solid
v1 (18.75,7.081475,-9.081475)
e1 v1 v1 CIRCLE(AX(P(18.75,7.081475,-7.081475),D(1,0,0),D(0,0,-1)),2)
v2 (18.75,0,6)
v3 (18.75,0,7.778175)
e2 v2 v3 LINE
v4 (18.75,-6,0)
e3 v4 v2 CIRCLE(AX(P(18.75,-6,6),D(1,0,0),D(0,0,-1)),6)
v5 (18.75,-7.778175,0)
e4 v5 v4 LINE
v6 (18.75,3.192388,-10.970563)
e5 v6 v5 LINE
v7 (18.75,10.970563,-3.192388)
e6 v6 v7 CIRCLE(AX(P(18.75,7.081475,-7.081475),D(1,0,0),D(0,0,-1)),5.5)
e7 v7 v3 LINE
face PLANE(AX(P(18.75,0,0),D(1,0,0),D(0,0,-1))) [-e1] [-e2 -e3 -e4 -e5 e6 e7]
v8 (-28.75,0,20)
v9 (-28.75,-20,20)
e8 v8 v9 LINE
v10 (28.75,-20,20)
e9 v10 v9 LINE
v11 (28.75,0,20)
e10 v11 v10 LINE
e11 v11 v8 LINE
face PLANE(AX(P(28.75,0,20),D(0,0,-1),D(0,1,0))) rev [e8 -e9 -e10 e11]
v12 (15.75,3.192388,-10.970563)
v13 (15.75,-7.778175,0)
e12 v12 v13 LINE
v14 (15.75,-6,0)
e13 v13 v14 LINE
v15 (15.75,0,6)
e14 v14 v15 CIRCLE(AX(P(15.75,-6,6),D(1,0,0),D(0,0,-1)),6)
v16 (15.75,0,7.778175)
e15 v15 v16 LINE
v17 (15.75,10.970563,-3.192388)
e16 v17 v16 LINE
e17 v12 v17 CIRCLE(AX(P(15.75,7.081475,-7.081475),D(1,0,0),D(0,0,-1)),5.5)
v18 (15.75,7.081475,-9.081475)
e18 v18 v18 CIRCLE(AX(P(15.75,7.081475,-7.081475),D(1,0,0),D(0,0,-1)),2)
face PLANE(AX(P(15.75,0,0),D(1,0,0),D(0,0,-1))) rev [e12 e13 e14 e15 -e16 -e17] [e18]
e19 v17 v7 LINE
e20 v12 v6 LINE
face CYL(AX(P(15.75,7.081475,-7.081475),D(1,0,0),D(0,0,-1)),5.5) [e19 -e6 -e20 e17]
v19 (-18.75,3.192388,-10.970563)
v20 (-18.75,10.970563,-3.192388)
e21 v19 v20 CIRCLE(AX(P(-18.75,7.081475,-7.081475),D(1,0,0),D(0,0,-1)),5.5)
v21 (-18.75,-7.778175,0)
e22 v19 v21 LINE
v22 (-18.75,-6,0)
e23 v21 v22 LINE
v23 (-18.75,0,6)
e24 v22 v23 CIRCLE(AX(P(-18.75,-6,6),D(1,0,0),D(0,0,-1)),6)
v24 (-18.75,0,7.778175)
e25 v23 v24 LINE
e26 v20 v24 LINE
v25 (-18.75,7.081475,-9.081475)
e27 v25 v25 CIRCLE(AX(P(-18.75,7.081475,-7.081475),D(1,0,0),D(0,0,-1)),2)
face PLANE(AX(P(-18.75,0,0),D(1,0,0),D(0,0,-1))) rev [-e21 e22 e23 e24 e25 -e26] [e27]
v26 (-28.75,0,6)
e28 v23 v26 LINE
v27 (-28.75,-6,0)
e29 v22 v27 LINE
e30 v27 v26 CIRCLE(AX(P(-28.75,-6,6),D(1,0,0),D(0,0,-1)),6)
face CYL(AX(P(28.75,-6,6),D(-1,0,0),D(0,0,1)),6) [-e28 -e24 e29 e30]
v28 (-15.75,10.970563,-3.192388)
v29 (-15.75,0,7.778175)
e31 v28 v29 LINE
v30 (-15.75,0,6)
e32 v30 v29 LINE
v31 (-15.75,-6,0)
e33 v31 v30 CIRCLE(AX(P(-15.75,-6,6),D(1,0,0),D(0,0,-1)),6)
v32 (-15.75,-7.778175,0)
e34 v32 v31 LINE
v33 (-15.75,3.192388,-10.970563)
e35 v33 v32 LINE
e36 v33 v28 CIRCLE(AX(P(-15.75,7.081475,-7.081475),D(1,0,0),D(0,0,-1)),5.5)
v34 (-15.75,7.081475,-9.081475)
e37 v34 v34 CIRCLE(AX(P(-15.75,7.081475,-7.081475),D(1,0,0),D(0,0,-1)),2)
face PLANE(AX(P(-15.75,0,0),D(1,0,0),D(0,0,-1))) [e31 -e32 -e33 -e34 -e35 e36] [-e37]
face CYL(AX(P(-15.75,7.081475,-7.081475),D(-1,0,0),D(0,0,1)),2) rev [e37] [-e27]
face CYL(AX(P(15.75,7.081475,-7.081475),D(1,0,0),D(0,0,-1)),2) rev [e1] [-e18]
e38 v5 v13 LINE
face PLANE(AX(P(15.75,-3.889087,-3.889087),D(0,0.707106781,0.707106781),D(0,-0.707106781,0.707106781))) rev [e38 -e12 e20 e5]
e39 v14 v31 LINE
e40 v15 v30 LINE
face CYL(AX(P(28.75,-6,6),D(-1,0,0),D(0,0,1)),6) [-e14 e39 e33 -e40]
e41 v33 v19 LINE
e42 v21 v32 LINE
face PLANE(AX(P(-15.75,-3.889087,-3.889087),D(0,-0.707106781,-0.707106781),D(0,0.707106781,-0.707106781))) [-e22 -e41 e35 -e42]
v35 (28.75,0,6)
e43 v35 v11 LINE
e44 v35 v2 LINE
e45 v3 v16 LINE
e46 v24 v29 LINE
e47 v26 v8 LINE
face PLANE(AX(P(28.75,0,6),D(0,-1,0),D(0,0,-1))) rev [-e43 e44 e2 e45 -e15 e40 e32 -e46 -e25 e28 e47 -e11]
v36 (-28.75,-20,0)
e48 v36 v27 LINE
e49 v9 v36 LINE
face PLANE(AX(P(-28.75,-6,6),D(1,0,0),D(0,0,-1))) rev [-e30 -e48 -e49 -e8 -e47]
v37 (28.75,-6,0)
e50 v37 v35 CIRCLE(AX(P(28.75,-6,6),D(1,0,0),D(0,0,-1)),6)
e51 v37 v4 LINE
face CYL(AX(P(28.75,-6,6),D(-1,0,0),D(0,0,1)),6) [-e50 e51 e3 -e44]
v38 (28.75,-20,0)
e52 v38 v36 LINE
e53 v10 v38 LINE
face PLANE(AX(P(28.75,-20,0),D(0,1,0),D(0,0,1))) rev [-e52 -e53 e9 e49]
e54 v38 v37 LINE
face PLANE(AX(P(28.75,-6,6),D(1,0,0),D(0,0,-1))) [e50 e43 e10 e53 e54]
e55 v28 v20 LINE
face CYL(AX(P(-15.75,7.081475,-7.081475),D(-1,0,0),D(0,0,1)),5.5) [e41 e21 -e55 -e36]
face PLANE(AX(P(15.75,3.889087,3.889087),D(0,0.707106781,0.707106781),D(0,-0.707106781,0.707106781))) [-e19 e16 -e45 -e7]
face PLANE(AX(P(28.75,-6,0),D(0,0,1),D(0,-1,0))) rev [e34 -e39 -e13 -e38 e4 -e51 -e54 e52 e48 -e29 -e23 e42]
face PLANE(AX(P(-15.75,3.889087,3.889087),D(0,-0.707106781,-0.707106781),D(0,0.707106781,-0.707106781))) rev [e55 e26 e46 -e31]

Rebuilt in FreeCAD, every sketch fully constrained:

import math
import FreeCAD as App
import Part
import Sketcher

V = App.Vector
Q = App.Units.Quantity

doc = App.newDocument("Part")
body = doc.addObject("PartDesign::Body", "Body")

sketch1 = body.newObject("Sketcher::SketchObject", "Sketch")
sketch1.AttachmentSupport = (doc.getObject("YZ_Plane"), [""])
sketch1.MapMode = "FlatFace"
sketch1.addGeometry([
    Part.LineSegment(V(0, 6, 0), V(0, 20, 0)),
    Part.LineSegment(V(0, 20, 0), V(-20, 20, 0)),
    Part.LineSegment(V(-20, 20, 0), V(-20, 0, 0)),
    Part.LineSegment(V(-20, 0, 0), V(-6, 0, 0)),
    Part.ArcOfCircle(Part.Circle(V(-6, 6, 0), V(0, 0, 1), 6), math.radians(-90), math.radians(0)),
], False)
sketch1.addConstraint([
    Sketcher.Constraint("Coincident", 0, 2, 1, 1),
    Sketcher.Constraint("Coincident", 1, 2, 2, 1),
    Sketcher.Constraint("Coincident", 2, 2, 3, 1),
    Sketcher.Constraint("Tangent", 3, 2, 4, 1),
    Sketcher.Constraint("Tangent", 4, 2, 0, 1),
    Sketcher.Constraint("Vertical", 0),
    Sketcher.Constraint("Horizontal", 1),
    Sketcher.Constraint("Vertical", 2),
    Sketcher.Constraint("Horizontal", 3),
    Sketcher.Constraint("PointOnObject", 0, 2, -2),
    Sketcher.Constraint("PointOnObject", 2, 2, -1),
    Sketcher.Constraint("Equal", 3, 0),
    Sketcher.Constraint("Radius", 4, Q("6 mm")),
    Sketcher.Constraint("DistanceX", 1, 2, 1, 1, Q("20 mm")),
])
pad1 = body.newObject("PartDesign::Pad", "Pad")
pad1.Profile = sketch1
pad1.Length = 57.5
pad1.Midplane = True

sketch2 = body.newObject("Sketcher::SketchObject", "Sketch001")
sketch2.AttachmentSupport = (doc.getObject("YZ_Plane"), [""])
sketch2.MapMode = "FlatFace"
sketch2.AttachmentOffset = App.Placement(V(0, 0, 18.75), App.Rotation())
sketch2.addGeometry([
    Part.LineSegment(V(-14.5, 6.7, 0), V(3.2, -11, 0)),
    Part.ArcOfCircle(Part.Circle(V(7.1, -7.1, 0), V(0, 0, 1), 5.5), math.radians(-135), math.radians(45)),
    Part.LineSegment(V(11, -3.2, 0), V(-6.7, 14.5, 0)),
    Part.LineSegment(V(-6.7, 14.5, 0), V(-14.5, 6.7, 0)),
    Part.Circle(V(7.1, -7.1, 0), V(0, 0, 1), 2),
], False)
sketch2.addConstraint([
    Sketcher.Constraint("Tangent", 0, 2, 1, 1),
    Sketcher.Constraint("Tangent", 1, 2, 2, 1),
    Sketcher.Constraint("Coincident", 2, 2, 3, 1),
    Sketcher.Constraint("Coincident", 3, 2, 0, 1),
    Sketcher.Constraint("Coincident", 4, 3, 1, 3),
    Sketcher.Constraint("Parallel", 0, 2),
    Sketcher.Constraint("Perpendicular", 2, 3),
    Sketcher.Constraint("Diameter", 4, Q("4 mm")),
    Sketcher.Constraint("Radius", 1, Q("5.5 mm")),
    Sketcher.Constraint("Angle", 0, Q("-45 deg")),
    Sketcher.Constraint("Distance", 0, Q("25 mm")),
    Sketcher.Constraint("DistanceX", -1, 1, 0, 2, Q("3.192388 mm")),
    Sketcher.Constraint("DistanceY", 1, 2, -1, 1, Q("3.192388 mm")),
])
pad2 = body.newObject("PartDesign::Pad", "Pad001")
pad2.Profile = sketch2
pad2.Length = 3
pad2.Reversed = True

sketch3 = body.newObject("Sketcher::SketchObject", "Sketch002")
sketch3.AttachmentSupport = (doc.getObject("YZ_Plane"), [""])
sketch3.MapMode = "FlatFace"
sketch3.AttachmentOffset = App.Placement(V(0, 0, -15.75), App.Rotation())
sketch3.addGeometry([
    Part.LineSegment(V(-14.5, 6.7, 0), V(3.2, -11, 0)),
    Part.ArcOfCircle(Part.Circle(V(7.1, -7.1, 0), V(0, 0, 1), 5.5), math.radians(-135), math.radians(45)),
    Part.LineSegment(V(11, -3.2, 0), V(-6.7, 14.5, 0)),
    Part.LineSegment(V(-6.7, 14.5, 0), V(-14.5, 6.7, 0)),
    Part.Circle(V(7.1, -7.1, 0), V(0, 0, 1), 2),
], False)
sketch3.addConstraint([
    Sketcher.Constraint("Tangent", 0, 2, 1, 1),
    Sketcher.Constraint("Tangent", 1, 2, 2, 1),
    Sketcher.Constraint("Coincident", 2, 2, 3, 1),
    Sketcher.Constraint("Coincident", 3, 2, 0, 1),
    Sketcher.Constraint("Coincident", 4, 3, 1, 3),
    Sketcher.Constraint("Parallel", 0, 2),
    Sketcher.Constraint("Perpendicular", 2, 3),
    Sketcher.Constraint("Diameter", 4, Q("4 mm")),
    Sketcher.Constraint("Radius", 1, Q("5.5 mm")),
    Sketcher.Constraint("Angle", 0, Q("-45 deg")),
    Sketcher.Constraint("Distance", 0, Q("25 mm")),
    Sketcher.Constraint("DistanceX", -1, 1, 0, 2, Q("3.192388 mm")),
    Sketcher.Constraint("DistanceY", 1, 2, -1, 1, Q("3.192388 mm")),
])
pad3 = body.newObject("PartDesign::Pad", "Pad002")
pad3.Profile = sketch3
pad3.Length = 3
pad3.Reversed = True

doc.recompute()
